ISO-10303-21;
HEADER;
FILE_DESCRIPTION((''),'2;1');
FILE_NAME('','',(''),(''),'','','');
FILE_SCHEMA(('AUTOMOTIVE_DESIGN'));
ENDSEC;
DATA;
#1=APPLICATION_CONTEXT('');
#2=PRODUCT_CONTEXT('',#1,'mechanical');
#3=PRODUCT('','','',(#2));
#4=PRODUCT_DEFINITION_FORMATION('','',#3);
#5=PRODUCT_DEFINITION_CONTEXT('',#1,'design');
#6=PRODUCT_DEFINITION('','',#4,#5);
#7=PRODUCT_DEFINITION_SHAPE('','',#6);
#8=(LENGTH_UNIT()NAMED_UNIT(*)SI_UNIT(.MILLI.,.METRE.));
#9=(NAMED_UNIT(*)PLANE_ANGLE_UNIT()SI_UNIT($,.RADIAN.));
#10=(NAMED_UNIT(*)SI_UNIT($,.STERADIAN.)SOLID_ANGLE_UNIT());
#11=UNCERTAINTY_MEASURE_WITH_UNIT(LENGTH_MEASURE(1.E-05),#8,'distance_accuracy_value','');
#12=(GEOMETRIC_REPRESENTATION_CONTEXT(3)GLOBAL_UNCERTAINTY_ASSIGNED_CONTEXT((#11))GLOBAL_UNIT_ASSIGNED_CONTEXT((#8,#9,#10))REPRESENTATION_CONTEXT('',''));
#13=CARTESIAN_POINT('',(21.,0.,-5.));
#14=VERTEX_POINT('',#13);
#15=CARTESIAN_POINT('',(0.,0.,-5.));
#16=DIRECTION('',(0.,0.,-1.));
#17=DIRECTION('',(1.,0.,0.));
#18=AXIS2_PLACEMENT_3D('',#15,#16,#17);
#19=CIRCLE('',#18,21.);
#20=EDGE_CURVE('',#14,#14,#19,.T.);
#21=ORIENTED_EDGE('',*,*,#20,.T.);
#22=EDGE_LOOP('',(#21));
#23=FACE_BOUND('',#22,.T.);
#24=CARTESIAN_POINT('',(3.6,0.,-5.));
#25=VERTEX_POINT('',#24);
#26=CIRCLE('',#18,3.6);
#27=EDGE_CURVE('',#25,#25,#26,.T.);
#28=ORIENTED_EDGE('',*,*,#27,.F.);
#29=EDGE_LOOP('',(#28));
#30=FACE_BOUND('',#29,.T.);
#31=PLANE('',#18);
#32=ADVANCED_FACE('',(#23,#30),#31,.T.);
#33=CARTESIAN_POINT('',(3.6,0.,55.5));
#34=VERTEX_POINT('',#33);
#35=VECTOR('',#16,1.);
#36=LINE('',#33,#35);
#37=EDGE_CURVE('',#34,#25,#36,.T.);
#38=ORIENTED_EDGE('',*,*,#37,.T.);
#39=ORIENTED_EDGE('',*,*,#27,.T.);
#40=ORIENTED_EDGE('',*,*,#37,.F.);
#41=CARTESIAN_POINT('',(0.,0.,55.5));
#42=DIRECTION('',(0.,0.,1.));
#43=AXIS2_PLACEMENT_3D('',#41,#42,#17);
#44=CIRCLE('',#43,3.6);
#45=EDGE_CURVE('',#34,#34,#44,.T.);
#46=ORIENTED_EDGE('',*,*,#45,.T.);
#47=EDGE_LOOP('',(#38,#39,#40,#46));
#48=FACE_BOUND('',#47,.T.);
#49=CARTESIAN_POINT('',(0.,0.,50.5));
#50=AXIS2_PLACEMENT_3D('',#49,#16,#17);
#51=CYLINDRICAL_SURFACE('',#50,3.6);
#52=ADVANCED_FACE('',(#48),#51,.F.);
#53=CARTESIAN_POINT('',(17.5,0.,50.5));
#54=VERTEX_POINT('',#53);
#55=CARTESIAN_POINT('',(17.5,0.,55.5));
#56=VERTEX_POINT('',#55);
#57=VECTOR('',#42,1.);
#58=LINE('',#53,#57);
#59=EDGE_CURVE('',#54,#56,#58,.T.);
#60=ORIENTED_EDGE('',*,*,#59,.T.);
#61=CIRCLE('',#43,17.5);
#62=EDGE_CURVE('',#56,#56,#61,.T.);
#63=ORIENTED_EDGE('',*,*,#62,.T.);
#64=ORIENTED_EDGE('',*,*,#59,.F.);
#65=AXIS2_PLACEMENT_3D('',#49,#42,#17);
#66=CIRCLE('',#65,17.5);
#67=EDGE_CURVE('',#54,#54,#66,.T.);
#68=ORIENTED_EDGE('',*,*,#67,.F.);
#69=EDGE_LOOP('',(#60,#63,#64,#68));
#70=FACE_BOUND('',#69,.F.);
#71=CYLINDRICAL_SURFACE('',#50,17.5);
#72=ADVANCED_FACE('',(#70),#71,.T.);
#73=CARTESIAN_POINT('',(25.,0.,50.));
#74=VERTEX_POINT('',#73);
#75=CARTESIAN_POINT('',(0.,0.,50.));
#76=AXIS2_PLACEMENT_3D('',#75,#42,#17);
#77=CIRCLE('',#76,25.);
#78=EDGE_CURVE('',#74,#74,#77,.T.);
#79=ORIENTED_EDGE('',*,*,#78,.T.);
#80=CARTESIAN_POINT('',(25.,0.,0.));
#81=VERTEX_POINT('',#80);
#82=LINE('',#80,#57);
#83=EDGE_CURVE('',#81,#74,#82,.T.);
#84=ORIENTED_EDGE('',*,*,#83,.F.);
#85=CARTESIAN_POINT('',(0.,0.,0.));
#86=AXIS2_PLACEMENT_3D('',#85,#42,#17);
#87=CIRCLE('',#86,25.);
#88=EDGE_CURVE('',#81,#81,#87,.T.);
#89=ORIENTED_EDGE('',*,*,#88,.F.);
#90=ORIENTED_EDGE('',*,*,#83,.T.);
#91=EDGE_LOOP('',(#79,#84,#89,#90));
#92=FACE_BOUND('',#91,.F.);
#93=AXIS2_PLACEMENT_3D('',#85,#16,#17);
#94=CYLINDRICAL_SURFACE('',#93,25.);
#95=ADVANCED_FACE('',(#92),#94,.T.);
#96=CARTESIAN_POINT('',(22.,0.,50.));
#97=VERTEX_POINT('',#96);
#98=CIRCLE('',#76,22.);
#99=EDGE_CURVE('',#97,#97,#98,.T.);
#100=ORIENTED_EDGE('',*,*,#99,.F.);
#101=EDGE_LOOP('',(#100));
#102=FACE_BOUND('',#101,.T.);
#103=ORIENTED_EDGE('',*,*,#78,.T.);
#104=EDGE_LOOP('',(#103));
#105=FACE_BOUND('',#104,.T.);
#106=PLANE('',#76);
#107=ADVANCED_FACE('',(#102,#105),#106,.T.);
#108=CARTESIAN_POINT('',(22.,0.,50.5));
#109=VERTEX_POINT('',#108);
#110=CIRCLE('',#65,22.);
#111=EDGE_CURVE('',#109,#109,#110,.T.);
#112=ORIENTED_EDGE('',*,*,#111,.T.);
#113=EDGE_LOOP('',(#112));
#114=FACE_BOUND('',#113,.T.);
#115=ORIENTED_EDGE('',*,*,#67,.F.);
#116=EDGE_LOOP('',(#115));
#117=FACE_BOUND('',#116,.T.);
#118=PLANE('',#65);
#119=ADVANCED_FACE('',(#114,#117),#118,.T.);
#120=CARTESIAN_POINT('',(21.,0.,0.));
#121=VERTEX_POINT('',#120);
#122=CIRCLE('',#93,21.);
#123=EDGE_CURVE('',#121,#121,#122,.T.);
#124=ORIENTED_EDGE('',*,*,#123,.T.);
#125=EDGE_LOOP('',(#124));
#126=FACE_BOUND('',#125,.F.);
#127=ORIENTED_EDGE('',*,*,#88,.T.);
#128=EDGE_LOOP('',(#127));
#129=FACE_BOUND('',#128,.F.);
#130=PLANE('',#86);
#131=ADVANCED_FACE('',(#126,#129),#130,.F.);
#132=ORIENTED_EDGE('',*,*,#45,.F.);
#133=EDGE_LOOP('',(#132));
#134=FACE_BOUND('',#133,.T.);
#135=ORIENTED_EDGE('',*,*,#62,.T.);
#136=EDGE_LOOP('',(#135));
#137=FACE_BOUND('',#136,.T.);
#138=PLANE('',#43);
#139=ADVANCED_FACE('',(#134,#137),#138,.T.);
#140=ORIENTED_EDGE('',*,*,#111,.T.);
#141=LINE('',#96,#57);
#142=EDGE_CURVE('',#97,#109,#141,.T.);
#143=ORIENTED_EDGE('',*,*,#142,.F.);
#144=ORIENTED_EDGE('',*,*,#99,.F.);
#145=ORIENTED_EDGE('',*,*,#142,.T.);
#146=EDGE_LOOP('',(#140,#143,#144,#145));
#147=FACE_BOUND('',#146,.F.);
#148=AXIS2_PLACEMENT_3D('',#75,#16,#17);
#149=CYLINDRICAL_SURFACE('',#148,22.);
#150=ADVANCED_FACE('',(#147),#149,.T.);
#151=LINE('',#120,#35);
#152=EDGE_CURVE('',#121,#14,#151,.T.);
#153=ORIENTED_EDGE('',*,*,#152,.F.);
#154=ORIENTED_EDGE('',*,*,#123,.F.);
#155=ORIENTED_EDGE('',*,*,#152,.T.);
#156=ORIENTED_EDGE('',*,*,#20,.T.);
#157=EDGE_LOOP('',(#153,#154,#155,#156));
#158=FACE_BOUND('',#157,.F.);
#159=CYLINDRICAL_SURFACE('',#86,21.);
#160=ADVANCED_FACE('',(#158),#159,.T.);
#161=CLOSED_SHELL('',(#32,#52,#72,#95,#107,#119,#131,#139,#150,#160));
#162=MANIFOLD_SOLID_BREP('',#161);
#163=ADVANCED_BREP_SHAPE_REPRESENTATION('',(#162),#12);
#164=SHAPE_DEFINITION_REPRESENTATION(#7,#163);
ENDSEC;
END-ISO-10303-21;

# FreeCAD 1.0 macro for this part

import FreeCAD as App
import Part
import Sketcher

V = App.Vector
Q = App.Units.Quantity

doc = App.newDocument("Part")
params = doc.addObject("Spreadsheet::Sheet", "Params")
for row, (alias, value) in enumerate([
    ("sketch1_diameter", "50 mm"),
    ("sketch1_diameter2", "7.2 mm"),
    ("pad1_length", "50 mm"),
    ("sketch2_diameter", "42 mm"),
    ("sketch2_diameter2", "7.2 mm"),
    ("pad2_length", "5 mm"),
    ("sketch3_diameter", "44 mm"),
    ("sketch3_diameter2", "7.2 mm"),
    ("pad3_length", "0.5 mm"),
    ("sketch4_diameter", "35 mm"),
    ("sketch4_diameter2", "7.2 mm"),
    ("pad4_length", "5 mm"),
], start=1):
    params.set(f"A{row}", alias)
    params.set(f"B{row}", "=" + value)
    params.setAlias(f"B{row}", alias)

body = doc.addObject("PartDesign::Body", "Body")

sketch1 = body.newObject("Sketcher::SketchObject", "Sketch")
sketch1.AttachmentSupport = (doc.getObject("XY_Plane"), [""])
sketch1.MapMode = "FlatFace"
sketch1.addGeometry([
    Part.Circle(V(0, 0, 0), V(0, 0, 1), 25),
    Part.Circle(V(0, 0, 0), V(0, 0, 1), 3.6),
], False)
sketch1.addConstraint([
    Sketcher.Constraint("Coincident", 0, 3, -1, 1),
    Sketcher.Constraint("Coincident", 1, 3, -1, 1),
    Sketcher.Constraint("Diameter", 0, Q("50 mm")),
    Sketcher.Constraint("Diameter", 1, Q("7.2 mm")),
])
sketch1.setExpression("Constraints[2]", "Params.sketch1_diameter")
sketch1.setExpression("Constraints[3]", "Params.sketch1_diameter2")
pad1 = body.newObject("PartDesign::Pad", "Pad")
pad1.Profile = sketch1
pad1.setExpression("Length", "Params.pad1_length")

sketch2 = body.newObject("Sketcher::SketchObject", "Sketch001")
sketch2.AttachmentSupport = (doc.getObject("XY_Plane"), [""])
sketch2.MapMode = "FlatFace"
sketch2.addGeometry([
    Part.Circle(V(0, 0, 0), V(0, 0, 1), 21),
    Part.Circle(V(0, 0, 0), V(0, 0, 1), 3.6),
], False)
sketch2.addConstraint([
    Sketcher.Constraint("Coincident", 0, 3, -1, 1),
    Sketcher.Constraint("Coincident", 1, 3, -1, 1),
    Sketcher.Constraint("Diameter", 0, Q("42 mm")),
    Sketcher.Constraint("Diameter", 1, Q("7.2 mm")),
])
sketch2.setExpression("Constraints[2]", "Params.sketch2_diameter")
sketch2.setExpression("Constraints[3]", "Params.sketch2_diameter2")
pad2 = body.newObject("PartDesign::Pad", "Pad001")
pad2.Profile = sketch2
pad2.setExpression("Length", "Params.pad2_length")
pad2.Reversed = True

sketch3 = body.newObject("Sketcher::SketchObject", "Sketch002")
sketch3.AttachmentSupport = (doc.getObject("XY_Plane"), [""])
sketch3.MapMode = "FlatFace"
sketch3.AttachmentOffset = App.Placement(V(0, 0, 50), App.Rotation())
sketch3.addGeometry([
    Part.Circle(V(0, 0, 0), V(0, 0, 1), 22),
    Part.Circle(V(0, 0, 0), V(0, 0, 1), 3.6),
], False)
sketch3.addConstraint([
    Sketcher.Constraint("Coincident", 0, 3, -1, 1),
    Sketcher.Constraint("Coincident", 1, 3, -1, 1),
    Sketcher.Constraint("Diameter", 0, Q("44 mm")),
    Sketcher.Constraint("Diameter", 1, Q("7.2 mm")),
])
sketch3.setExpression("Constraints[2]", "Params.sketch3_diameter")
sketch3.setExpression("Constraints[3]", "Params.sketch3_diameter2")
pad3 = body.newObject("PartDesign::Pad", "Pad002")
pad3.Profile = sketch3
pad3.setExpression("Length", "Params.pad3_length")

sketch4 = body.newObject("Sketcher::SketchObject", "Sketch003")
sketch4.AttachmentSupport = (doc.getObject("XY_Plane"), [""])
sketch4.MapMode = "FlatFace"
sketch4.AttachmentOffset = App.Placement(V(0, 0, 50.5), App.Rotation())
sketch4.addGeometry([
    Part.Circle(V(0, 0, 0), V(0, 0, 1), 17.5),
    Part.Circle(V(0, 0, 0), V(0, 0, 1), 3.6),
], False)
sketch4.addConstraint([
    Sketcher.Constraint("Coincident", 0, 3, -1, 1),
    Sketcher.Constraint("Coincident", 1, 3, -1, 1),
    Sketcher.Constraint("Diameter", 0, Q("35 mm")),
    Sketcher.Constraint("Diameter", 1, Q("7.2 mm")),
])
sketch4.setExpression("Constraints[2]", "Params.sketch4_diameter")
sketch4.setExpression("Constraints[3]", "Params.sketch4_diameter2")
pad4 = body.newObject("PartDesign::Pad", "Pad003")
pad4.Profile = sketch4
pad4.setExpression("Length", "Params.pad4_length")

doc.recompute()
